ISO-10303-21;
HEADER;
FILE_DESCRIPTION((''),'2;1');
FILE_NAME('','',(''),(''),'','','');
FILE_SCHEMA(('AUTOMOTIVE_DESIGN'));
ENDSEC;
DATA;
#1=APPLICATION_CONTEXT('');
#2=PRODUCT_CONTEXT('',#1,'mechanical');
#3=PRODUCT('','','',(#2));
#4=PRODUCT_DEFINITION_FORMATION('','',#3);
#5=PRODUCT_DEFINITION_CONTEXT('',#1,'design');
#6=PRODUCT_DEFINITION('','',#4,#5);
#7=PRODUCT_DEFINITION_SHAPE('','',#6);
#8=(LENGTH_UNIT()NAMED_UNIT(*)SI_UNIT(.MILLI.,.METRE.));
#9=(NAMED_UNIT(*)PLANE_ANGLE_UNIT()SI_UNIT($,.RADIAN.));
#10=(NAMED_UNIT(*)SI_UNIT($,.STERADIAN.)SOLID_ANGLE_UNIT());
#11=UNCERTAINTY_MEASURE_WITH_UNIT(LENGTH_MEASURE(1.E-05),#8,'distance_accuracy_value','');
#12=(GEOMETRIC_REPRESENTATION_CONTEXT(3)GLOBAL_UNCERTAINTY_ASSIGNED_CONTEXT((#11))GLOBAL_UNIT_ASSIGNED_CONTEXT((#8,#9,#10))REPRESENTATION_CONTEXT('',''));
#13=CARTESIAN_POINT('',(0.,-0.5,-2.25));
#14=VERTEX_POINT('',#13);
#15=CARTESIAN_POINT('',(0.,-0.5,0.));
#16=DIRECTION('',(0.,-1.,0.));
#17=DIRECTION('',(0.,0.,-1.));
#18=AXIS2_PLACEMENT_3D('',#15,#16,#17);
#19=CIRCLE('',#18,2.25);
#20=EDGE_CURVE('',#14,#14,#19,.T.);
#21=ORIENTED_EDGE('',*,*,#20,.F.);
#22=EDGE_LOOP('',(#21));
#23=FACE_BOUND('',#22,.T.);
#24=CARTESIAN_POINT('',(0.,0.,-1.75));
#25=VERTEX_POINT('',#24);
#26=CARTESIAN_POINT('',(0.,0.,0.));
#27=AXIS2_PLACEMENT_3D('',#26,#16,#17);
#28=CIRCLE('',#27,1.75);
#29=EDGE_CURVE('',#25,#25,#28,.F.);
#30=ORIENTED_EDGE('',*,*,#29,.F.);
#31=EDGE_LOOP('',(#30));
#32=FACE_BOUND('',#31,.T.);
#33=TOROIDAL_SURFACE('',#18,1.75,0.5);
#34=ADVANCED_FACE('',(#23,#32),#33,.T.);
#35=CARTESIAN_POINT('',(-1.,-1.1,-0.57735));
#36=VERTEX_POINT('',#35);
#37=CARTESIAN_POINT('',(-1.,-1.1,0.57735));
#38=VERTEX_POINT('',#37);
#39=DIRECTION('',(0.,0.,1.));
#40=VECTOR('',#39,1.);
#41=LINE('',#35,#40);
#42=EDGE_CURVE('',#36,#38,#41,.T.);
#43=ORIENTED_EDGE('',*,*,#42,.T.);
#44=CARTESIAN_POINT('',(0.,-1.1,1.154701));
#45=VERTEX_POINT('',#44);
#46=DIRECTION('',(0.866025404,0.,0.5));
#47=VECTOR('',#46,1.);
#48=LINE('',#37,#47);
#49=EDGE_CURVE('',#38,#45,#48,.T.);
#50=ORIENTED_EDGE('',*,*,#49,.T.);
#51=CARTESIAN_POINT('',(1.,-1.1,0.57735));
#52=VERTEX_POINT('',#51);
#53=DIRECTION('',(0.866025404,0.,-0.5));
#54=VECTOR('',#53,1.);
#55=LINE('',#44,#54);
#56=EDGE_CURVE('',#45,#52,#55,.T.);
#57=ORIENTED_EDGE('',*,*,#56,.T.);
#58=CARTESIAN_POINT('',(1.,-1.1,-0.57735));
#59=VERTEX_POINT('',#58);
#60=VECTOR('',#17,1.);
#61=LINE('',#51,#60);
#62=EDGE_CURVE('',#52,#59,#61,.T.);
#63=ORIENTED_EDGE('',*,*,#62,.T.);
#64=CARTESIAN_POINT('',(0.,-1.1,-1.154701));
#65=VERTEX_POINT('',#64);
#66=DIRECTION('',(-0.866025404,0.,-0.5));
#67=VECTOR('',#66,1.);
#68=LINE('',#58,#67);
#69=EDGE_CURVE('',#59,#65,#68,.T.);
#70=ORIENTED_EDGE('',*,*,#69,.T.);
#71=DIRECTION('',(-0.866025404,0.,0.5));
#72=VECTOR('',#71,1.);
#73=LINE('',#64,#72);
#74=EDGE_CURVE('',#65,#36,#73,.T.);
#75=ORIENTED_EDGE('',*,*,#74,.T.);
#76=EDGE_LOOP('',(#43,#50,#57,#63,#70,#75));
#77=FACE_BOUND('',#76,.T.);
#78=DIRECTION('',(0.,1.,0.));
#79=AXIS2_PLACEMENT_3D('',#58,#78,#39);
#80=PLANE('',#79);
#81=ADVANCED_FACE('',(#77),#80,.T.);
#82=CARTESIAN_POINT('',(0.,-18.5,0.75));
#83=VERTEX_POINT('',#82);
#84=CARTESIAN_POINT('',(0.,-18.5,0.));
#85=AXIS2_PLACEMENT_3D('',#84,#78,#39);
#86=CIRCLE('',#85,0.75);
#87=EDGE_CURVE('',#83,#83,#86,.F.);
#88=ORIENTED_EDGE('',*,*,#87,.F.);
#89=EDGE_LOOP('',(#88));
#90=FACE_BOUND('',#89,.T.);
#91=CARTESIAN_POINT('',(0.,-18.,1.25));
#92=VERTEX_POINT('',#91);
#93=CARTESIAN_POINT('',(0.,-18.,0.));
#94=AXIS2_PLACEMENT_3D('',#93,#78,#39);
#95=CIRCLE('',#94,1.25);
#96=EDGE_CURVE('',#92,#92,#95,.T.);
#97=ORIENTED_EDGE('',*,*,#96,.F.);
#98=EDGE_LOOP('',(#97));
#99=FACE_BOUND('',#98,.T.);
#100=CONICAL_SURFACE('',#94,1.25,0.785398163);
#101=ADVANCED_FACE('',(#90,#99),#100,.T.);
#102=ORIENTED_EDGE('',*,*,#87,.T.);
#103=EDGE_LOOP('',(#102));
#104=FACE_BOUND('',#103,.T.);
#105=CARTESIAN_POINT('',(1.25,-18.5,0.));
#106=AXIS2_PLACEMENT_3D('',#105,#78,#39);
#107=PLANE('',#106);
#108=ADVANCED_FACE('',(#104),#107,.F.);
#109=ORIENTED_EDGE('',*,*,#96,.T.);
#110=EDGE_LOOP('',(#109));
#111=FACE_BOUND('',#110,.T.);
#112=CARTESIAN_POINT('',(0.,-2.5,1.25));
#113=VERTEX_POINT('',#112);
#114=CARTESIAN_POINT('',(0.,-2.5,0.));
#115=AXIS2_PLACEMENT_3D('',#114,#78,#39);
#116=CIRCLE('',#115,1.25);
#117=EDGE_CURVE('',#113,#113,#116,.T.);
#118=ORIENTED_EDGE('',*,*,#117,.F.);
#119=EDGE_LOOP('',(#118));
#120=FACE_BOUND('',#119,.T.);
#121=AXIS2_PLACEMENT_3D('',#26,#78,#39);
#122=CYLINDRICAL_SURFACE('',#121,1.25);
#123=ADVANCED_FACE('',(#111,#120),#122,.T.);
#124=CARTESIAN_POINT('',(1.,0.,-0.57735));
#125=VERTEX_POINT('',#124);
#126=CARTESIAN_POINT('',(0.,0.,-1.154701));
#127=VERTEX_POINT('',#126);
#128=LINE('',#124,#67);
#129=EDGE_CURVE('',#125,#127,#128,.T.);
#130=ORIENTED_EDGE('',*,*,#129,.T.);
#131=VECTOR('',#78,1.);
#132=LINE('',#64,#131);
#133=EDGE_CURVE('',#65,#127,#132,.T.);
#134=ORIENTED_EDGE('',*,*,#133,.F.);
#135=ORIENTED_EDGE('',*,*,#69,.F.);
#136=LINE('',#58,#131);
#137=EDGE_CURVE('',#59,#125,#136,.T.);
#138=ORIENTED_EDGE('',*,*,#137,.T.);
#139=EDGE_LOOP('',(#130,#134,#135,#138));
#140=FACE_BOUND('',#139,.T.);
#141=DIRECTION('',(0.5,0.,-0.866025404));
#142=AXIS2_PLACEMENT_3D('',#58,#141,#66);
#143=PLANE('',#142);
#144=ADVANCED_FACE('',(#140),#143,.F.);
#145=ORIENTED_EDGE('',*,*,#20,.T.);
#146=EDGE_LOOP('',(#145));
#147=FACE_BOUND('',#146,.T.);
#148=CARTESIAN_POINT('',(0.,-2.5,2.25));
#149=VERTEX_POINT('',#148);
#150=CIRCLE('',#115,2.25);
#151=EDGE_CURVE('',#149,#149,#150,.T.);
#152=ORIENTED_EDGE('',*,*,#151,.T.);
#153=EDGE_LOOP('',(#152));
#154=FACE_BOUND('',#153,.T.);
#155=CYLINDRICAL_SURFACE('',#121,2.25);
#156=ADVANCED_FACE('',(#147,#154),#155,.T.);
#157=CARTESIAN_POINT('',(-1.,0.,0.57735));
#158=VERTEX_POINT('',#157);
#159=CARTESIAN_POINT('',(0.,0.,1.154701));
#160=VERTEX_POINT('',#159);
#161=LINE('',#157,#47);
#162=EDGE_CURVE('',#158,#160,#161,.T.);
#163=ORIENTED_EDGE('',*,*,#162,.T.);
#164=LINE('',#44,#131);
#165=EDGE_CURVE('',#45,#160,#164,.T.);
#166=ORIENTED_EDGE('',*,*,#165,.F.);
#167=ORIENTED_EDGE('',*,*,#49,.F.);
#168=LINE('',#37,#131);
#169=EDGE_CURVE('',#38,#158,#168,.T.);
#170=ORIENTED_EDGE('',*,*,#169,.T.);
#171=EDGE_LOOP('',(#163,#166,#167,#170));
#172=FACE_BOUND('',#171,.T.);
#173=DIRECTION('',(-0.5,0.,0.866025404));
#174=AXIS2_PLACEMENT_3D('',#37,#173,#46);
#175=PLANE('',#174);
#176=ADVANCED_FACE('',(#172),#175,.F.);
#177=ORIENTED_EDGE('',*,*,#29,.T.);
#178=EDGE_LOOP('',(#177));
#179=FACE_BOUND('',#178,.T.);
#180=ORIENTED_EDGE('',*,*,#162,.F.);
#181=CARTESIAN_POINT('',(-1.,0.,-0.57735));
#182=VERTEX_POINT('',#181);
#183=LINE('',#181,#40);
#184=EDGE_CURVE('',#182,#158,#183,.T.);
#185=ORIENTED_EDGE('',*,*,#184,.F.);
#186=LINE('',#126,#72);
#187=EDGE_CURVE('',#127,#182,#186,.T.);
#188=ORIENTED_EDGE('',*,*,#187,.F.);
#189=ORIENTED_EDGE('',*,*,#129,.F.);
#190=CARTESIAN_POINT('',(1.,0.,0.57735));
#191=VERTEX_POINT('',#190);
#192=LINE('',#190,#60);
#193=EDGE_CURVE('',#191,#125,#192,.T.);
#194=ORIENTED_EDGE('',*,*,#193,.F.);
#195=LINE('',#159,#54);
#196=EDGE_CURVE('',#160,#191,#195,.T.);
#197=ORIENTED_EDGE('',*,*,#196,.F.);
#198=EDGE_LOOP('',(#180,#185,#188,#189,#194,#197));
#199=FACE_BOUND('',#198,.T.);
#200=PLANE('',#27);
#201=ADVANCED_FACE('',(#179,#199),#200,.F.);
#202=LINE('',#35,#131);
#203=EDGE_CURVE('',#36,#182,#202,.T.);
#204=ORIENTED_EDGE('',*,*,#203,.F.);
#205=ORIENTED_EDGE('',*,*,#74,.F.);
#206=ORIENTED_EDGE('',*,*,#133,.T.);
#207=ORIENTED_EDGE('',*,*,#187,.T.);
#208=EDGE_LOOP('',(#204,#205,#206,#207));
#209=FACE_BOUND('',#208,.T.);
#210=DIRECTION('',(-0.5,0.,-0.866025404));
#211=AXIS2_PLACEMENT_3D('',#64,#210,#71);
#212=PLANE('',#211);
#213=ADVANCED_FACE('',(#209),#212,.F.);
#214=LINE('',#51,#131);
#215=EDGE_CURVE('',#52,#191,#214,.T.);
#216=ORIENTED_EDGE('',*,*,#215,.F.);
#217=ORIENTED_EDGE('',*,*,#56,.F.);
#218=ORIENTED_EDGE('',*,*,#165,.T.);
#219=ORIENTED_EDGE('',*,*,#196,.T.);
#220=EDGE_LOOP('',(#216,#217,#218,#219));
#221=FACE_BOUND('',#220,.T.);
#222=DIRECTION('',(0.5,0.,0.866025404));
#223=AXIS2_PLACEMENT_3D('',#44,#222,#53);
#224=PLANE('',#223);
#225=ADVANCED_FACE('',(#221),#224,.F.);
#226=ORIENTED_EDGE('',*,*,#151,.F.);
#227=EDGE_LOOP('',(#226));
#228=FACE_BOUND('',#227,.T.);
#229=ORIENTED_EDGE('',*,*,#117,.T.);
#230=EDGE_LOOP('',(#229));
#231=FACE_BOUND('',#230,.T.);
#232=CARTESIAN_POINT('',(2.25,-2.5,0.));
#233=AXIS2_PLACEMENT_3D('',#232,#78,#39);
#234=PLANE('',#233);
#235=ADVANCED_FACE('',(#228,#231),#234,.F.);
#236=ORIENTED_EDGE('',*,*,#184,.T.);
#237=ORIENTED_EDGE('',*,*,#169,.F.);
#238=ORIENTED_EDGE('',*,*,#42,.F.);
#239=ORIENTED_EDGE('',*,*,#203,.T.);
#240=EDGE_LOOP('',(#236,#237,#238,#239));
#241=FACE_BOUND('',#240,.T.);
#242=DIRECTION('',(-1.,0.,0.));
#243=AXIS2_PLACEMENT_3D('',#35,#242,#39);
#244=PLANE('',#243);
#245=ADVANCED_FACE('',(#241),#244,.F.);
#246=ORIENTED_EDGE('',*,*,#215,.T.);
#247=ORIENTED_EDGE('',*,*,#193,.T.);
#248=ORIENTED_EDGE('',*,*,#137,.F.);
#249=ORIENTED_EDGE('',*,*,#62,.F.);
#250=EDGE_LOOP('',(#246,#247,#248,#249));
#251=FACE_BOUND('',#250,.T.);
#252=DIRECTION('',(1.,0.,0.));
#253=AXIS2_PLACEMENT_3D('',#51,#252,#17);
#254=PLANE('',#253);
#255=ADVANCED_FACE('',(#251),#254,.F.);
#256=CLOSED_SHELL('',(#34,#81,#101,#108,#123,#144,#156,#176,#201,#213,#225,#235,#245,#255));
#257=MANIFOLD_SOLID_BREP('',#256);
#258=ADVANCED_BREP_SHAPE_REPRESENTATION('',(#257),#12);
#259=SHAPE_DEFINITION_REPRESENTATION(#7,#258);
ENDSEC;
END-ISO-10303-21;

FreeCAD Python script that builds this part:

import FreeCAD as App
import Part
import Sketcher

V = App.Vector
Q = App.Units.Quantity


def edges_at(feature, points):
    """Names of the edges that pass closest to the given points."""
    edges = feature.Shape.Edges
    near = lambda p: min(range(len(edges)), key=lambda i: edges[i].distToShape(Part.Vertex(*p))[0])
    return sorted({f"Edge{near(p) + 1}" for p in points})

doc = App.newDocument("Part")
params = doc.addObject("Spreadsheet::Sheet", "Params")
for row, (alias, value) in enumerate([
    ("sketch1_width", "1 mm"),
    ("sketch1_height", "16 mm"),
    ("sketch1_height2", "18.5 mm"),
    ("sketch1_width2", "2.25 mm"),
    ("revolution_angle", "360 deg"),
    ("pocket1_length", "1.1 mm"),
    ("chamfer_size", "0.5 mm"),
    ("fillet_radius", "0.5 mm"),
], start=1):
    params.set(f"A{row}", alias)
    params.set(f"B{row}", "=" + value)
    params.setAlias(f"B{row}", alias)

body = doc.addObject("PartDesign::Body", "Body")

sketch1 = doc.addObject("Sketcher::SketchObject", "Sketch")
body.addObject(sketch1)
sketch1.AttachmentSupport = (doc.XY_Plane, [""])
sketch1.MapMode = "FlatFace"
sketch1.addGeometry([
    Part.LineSegment(V(2.2, 0, 0), V(0, 0, 0)),
    Part.LineSegment(V(0, 0, 0), V(0, -18.5, 0)),
    Part.LineSegment(V(0, -18.5, 0), V(1.2, -18.5, 0)),
    Part.LineSegment(V(1.2, -18.5, 0), V(1.2, -2.5, 0)),
    Part.LineSegment(V(1.2, -2.5, 0), V(2.2, -2.5, 0)),
    Part.LineSegment(V(2.2, -2.5, 0), V(2.2, 0, 0)),
], False)
sketch1.addConstraint([
    Sketcher.Constraint("Coincident", 0, 2, 1, 1),
    Sketcher.Constraint("Coincident", 1, 2, 2, 1),
    Sketcher.Constraint("Coincident", 2, 2, 3, 1),
    Sketcher.Constraint("Coincident", 3, 2, 4, 1),
    Sketcher.Constraint("Coincident", 4, 2, 5, 1),
    Sketcher.Constraint("Coincident", 5, 2, 0, 1),
    Sketcher.Constraint("Horizontal", 0),
    Sketcher.Constraint("Vertical", 1),
    Sketcher.Constraint("Horizontal", 2),
    Sketcher.Constraint("Vertical", 3),
    Sketcher.Constraint("Horizontal", 4),
    Sketcher.Constraint("Vertical", 5),
    Sketcher.Constraint("Coincident", 0, 2, -1, 1),
    Sketcher.Constraint("DistanceX", 4, 1, 4, 2, 1.0),
    Sketcher.Constraint("DistanceY", 3, 1, 3, 2, 16.0),
    Sketcher.Constraint("DistanceY", 1, 2, 1, 1, 18.5),
    Sketcher.Constraint("DistanceX", 0, 2, 0, 1, 2.25),
])
sketch1.setExpression("Constraints[13]", "Params.sketch1_width")
sketch1.setExpression("Constraints[14]", "Params.sketch1_height")
sketch1.setExpression("Constraints[15]", "Params.sketch1_height2")
sketch1.setExpression("Constraints[16]", "Params.sketch1_width2")
revolution = doc.addObject("PartDesign::Revolution", "Revolution")
body.addObject(revolution)
revolution.Profile = sketch1
revolution.ReferenceAxis = (sketch1, ["V_Axis"])
revolution.setExpression("Angle", "Params.revolution_angle")

sketch2 = doc.addObject("Sketcher::SketchObject", "Sketch001")
body.addObject(sketch2)
sketch2.AttachmentSupport = (doc.XZ_Plane, [""])
sketch2.MapMode = "FlatFace"
sketch2.addGeometry([
    Part.LineSegment(V(1, -0.6, 0), V(0, -1.2, 0)),
    Part.LineSegment(V(0, -1.2, 0), V(-1, -0.6, 0)),
    Part.LineSegment(V(-1, -0.6, 0), V(-1, 0.6, 0)),
    Part.LineSegment(V(-1, 0.6, 0), V(0, 1.2, 0)),
    Part.LineSegment(V(0, 1.2, 0), V(1, 0.6, 0)),
    Part.LineSegment(V(1, 0.6, 0), V(1, -0.6, 0)),
], False)
sketch2.addConstraint([
    Sketcher.Constraint("Coincident", 0, 2, 1, 1),
    Sketcher.Constraint("Coincident", 1, 2, 2, 1),
    Sketcher.Constraint("Coincident", 2, 2, 3, 1),
    Sketcher.Constraint("Coincident", 3, 2, 4, 1),
    Sketcher.Constraint("Coincident", 4, 2, 5, 1),
    Sketcher.Constraint("Coincident", 5, 2, 0, 1),
    Sketcher.Constraint("Vertical", 2),
    Sketcher.Constraint("Vertical", 5),
    Sketcher.Constraint("Symmetric", 0, 2, 3, 2, -1, 1),
    Sketcher.Constraint("Symmetric", 1, 2, 4, 2, -1, 1),
    Sketcher.Constraint("PointOnObject", 0, 2, -2),
    Sketcher.Constraint("Parallel", 0, 3),
    Sketcher.Constraint("Horizontal", 2, 2, 4, 2),
    Sketcher.Constraint("Angle", 0, Q("-150 deg")),
    Sketcher.Constraint("DistanceX", 1, 2, -1, 1, 1.0),
    Sketcher.Constraint("DistanceY", 2, 1, 2, 2, 1.154701),
])
pocket1 = doc.addObject("PartDesign::Pocket", "Pocket")
body.addObject(pocket1)
pocket1.Profile = sketch2
pocket1.setExpression("Length", "Params.pocket1_length")
pocket1.Reversed = True
doc.recompute()

chamfer = doc.addObject("PartDesign::Chamfer", "Chamfer")
body.addObject(chamfer)
chamfer.Base = (pocket1, edges_at(pocket1, [(0, -18.5, -1.25)]))
chamfer.setExpression("Size", "Params.chamfer_size")
doc.recompute()

fillet = doc.addObject("PartDesign::Fillet", "Fillet")
body.addObject(fillet)
fillet.Base = (chamfer, edges_at(chamfer, [(0, 0, -2.25)]))
fillet.setExpression("Radius", "Params.fillet_radius")

doc.recompute()
